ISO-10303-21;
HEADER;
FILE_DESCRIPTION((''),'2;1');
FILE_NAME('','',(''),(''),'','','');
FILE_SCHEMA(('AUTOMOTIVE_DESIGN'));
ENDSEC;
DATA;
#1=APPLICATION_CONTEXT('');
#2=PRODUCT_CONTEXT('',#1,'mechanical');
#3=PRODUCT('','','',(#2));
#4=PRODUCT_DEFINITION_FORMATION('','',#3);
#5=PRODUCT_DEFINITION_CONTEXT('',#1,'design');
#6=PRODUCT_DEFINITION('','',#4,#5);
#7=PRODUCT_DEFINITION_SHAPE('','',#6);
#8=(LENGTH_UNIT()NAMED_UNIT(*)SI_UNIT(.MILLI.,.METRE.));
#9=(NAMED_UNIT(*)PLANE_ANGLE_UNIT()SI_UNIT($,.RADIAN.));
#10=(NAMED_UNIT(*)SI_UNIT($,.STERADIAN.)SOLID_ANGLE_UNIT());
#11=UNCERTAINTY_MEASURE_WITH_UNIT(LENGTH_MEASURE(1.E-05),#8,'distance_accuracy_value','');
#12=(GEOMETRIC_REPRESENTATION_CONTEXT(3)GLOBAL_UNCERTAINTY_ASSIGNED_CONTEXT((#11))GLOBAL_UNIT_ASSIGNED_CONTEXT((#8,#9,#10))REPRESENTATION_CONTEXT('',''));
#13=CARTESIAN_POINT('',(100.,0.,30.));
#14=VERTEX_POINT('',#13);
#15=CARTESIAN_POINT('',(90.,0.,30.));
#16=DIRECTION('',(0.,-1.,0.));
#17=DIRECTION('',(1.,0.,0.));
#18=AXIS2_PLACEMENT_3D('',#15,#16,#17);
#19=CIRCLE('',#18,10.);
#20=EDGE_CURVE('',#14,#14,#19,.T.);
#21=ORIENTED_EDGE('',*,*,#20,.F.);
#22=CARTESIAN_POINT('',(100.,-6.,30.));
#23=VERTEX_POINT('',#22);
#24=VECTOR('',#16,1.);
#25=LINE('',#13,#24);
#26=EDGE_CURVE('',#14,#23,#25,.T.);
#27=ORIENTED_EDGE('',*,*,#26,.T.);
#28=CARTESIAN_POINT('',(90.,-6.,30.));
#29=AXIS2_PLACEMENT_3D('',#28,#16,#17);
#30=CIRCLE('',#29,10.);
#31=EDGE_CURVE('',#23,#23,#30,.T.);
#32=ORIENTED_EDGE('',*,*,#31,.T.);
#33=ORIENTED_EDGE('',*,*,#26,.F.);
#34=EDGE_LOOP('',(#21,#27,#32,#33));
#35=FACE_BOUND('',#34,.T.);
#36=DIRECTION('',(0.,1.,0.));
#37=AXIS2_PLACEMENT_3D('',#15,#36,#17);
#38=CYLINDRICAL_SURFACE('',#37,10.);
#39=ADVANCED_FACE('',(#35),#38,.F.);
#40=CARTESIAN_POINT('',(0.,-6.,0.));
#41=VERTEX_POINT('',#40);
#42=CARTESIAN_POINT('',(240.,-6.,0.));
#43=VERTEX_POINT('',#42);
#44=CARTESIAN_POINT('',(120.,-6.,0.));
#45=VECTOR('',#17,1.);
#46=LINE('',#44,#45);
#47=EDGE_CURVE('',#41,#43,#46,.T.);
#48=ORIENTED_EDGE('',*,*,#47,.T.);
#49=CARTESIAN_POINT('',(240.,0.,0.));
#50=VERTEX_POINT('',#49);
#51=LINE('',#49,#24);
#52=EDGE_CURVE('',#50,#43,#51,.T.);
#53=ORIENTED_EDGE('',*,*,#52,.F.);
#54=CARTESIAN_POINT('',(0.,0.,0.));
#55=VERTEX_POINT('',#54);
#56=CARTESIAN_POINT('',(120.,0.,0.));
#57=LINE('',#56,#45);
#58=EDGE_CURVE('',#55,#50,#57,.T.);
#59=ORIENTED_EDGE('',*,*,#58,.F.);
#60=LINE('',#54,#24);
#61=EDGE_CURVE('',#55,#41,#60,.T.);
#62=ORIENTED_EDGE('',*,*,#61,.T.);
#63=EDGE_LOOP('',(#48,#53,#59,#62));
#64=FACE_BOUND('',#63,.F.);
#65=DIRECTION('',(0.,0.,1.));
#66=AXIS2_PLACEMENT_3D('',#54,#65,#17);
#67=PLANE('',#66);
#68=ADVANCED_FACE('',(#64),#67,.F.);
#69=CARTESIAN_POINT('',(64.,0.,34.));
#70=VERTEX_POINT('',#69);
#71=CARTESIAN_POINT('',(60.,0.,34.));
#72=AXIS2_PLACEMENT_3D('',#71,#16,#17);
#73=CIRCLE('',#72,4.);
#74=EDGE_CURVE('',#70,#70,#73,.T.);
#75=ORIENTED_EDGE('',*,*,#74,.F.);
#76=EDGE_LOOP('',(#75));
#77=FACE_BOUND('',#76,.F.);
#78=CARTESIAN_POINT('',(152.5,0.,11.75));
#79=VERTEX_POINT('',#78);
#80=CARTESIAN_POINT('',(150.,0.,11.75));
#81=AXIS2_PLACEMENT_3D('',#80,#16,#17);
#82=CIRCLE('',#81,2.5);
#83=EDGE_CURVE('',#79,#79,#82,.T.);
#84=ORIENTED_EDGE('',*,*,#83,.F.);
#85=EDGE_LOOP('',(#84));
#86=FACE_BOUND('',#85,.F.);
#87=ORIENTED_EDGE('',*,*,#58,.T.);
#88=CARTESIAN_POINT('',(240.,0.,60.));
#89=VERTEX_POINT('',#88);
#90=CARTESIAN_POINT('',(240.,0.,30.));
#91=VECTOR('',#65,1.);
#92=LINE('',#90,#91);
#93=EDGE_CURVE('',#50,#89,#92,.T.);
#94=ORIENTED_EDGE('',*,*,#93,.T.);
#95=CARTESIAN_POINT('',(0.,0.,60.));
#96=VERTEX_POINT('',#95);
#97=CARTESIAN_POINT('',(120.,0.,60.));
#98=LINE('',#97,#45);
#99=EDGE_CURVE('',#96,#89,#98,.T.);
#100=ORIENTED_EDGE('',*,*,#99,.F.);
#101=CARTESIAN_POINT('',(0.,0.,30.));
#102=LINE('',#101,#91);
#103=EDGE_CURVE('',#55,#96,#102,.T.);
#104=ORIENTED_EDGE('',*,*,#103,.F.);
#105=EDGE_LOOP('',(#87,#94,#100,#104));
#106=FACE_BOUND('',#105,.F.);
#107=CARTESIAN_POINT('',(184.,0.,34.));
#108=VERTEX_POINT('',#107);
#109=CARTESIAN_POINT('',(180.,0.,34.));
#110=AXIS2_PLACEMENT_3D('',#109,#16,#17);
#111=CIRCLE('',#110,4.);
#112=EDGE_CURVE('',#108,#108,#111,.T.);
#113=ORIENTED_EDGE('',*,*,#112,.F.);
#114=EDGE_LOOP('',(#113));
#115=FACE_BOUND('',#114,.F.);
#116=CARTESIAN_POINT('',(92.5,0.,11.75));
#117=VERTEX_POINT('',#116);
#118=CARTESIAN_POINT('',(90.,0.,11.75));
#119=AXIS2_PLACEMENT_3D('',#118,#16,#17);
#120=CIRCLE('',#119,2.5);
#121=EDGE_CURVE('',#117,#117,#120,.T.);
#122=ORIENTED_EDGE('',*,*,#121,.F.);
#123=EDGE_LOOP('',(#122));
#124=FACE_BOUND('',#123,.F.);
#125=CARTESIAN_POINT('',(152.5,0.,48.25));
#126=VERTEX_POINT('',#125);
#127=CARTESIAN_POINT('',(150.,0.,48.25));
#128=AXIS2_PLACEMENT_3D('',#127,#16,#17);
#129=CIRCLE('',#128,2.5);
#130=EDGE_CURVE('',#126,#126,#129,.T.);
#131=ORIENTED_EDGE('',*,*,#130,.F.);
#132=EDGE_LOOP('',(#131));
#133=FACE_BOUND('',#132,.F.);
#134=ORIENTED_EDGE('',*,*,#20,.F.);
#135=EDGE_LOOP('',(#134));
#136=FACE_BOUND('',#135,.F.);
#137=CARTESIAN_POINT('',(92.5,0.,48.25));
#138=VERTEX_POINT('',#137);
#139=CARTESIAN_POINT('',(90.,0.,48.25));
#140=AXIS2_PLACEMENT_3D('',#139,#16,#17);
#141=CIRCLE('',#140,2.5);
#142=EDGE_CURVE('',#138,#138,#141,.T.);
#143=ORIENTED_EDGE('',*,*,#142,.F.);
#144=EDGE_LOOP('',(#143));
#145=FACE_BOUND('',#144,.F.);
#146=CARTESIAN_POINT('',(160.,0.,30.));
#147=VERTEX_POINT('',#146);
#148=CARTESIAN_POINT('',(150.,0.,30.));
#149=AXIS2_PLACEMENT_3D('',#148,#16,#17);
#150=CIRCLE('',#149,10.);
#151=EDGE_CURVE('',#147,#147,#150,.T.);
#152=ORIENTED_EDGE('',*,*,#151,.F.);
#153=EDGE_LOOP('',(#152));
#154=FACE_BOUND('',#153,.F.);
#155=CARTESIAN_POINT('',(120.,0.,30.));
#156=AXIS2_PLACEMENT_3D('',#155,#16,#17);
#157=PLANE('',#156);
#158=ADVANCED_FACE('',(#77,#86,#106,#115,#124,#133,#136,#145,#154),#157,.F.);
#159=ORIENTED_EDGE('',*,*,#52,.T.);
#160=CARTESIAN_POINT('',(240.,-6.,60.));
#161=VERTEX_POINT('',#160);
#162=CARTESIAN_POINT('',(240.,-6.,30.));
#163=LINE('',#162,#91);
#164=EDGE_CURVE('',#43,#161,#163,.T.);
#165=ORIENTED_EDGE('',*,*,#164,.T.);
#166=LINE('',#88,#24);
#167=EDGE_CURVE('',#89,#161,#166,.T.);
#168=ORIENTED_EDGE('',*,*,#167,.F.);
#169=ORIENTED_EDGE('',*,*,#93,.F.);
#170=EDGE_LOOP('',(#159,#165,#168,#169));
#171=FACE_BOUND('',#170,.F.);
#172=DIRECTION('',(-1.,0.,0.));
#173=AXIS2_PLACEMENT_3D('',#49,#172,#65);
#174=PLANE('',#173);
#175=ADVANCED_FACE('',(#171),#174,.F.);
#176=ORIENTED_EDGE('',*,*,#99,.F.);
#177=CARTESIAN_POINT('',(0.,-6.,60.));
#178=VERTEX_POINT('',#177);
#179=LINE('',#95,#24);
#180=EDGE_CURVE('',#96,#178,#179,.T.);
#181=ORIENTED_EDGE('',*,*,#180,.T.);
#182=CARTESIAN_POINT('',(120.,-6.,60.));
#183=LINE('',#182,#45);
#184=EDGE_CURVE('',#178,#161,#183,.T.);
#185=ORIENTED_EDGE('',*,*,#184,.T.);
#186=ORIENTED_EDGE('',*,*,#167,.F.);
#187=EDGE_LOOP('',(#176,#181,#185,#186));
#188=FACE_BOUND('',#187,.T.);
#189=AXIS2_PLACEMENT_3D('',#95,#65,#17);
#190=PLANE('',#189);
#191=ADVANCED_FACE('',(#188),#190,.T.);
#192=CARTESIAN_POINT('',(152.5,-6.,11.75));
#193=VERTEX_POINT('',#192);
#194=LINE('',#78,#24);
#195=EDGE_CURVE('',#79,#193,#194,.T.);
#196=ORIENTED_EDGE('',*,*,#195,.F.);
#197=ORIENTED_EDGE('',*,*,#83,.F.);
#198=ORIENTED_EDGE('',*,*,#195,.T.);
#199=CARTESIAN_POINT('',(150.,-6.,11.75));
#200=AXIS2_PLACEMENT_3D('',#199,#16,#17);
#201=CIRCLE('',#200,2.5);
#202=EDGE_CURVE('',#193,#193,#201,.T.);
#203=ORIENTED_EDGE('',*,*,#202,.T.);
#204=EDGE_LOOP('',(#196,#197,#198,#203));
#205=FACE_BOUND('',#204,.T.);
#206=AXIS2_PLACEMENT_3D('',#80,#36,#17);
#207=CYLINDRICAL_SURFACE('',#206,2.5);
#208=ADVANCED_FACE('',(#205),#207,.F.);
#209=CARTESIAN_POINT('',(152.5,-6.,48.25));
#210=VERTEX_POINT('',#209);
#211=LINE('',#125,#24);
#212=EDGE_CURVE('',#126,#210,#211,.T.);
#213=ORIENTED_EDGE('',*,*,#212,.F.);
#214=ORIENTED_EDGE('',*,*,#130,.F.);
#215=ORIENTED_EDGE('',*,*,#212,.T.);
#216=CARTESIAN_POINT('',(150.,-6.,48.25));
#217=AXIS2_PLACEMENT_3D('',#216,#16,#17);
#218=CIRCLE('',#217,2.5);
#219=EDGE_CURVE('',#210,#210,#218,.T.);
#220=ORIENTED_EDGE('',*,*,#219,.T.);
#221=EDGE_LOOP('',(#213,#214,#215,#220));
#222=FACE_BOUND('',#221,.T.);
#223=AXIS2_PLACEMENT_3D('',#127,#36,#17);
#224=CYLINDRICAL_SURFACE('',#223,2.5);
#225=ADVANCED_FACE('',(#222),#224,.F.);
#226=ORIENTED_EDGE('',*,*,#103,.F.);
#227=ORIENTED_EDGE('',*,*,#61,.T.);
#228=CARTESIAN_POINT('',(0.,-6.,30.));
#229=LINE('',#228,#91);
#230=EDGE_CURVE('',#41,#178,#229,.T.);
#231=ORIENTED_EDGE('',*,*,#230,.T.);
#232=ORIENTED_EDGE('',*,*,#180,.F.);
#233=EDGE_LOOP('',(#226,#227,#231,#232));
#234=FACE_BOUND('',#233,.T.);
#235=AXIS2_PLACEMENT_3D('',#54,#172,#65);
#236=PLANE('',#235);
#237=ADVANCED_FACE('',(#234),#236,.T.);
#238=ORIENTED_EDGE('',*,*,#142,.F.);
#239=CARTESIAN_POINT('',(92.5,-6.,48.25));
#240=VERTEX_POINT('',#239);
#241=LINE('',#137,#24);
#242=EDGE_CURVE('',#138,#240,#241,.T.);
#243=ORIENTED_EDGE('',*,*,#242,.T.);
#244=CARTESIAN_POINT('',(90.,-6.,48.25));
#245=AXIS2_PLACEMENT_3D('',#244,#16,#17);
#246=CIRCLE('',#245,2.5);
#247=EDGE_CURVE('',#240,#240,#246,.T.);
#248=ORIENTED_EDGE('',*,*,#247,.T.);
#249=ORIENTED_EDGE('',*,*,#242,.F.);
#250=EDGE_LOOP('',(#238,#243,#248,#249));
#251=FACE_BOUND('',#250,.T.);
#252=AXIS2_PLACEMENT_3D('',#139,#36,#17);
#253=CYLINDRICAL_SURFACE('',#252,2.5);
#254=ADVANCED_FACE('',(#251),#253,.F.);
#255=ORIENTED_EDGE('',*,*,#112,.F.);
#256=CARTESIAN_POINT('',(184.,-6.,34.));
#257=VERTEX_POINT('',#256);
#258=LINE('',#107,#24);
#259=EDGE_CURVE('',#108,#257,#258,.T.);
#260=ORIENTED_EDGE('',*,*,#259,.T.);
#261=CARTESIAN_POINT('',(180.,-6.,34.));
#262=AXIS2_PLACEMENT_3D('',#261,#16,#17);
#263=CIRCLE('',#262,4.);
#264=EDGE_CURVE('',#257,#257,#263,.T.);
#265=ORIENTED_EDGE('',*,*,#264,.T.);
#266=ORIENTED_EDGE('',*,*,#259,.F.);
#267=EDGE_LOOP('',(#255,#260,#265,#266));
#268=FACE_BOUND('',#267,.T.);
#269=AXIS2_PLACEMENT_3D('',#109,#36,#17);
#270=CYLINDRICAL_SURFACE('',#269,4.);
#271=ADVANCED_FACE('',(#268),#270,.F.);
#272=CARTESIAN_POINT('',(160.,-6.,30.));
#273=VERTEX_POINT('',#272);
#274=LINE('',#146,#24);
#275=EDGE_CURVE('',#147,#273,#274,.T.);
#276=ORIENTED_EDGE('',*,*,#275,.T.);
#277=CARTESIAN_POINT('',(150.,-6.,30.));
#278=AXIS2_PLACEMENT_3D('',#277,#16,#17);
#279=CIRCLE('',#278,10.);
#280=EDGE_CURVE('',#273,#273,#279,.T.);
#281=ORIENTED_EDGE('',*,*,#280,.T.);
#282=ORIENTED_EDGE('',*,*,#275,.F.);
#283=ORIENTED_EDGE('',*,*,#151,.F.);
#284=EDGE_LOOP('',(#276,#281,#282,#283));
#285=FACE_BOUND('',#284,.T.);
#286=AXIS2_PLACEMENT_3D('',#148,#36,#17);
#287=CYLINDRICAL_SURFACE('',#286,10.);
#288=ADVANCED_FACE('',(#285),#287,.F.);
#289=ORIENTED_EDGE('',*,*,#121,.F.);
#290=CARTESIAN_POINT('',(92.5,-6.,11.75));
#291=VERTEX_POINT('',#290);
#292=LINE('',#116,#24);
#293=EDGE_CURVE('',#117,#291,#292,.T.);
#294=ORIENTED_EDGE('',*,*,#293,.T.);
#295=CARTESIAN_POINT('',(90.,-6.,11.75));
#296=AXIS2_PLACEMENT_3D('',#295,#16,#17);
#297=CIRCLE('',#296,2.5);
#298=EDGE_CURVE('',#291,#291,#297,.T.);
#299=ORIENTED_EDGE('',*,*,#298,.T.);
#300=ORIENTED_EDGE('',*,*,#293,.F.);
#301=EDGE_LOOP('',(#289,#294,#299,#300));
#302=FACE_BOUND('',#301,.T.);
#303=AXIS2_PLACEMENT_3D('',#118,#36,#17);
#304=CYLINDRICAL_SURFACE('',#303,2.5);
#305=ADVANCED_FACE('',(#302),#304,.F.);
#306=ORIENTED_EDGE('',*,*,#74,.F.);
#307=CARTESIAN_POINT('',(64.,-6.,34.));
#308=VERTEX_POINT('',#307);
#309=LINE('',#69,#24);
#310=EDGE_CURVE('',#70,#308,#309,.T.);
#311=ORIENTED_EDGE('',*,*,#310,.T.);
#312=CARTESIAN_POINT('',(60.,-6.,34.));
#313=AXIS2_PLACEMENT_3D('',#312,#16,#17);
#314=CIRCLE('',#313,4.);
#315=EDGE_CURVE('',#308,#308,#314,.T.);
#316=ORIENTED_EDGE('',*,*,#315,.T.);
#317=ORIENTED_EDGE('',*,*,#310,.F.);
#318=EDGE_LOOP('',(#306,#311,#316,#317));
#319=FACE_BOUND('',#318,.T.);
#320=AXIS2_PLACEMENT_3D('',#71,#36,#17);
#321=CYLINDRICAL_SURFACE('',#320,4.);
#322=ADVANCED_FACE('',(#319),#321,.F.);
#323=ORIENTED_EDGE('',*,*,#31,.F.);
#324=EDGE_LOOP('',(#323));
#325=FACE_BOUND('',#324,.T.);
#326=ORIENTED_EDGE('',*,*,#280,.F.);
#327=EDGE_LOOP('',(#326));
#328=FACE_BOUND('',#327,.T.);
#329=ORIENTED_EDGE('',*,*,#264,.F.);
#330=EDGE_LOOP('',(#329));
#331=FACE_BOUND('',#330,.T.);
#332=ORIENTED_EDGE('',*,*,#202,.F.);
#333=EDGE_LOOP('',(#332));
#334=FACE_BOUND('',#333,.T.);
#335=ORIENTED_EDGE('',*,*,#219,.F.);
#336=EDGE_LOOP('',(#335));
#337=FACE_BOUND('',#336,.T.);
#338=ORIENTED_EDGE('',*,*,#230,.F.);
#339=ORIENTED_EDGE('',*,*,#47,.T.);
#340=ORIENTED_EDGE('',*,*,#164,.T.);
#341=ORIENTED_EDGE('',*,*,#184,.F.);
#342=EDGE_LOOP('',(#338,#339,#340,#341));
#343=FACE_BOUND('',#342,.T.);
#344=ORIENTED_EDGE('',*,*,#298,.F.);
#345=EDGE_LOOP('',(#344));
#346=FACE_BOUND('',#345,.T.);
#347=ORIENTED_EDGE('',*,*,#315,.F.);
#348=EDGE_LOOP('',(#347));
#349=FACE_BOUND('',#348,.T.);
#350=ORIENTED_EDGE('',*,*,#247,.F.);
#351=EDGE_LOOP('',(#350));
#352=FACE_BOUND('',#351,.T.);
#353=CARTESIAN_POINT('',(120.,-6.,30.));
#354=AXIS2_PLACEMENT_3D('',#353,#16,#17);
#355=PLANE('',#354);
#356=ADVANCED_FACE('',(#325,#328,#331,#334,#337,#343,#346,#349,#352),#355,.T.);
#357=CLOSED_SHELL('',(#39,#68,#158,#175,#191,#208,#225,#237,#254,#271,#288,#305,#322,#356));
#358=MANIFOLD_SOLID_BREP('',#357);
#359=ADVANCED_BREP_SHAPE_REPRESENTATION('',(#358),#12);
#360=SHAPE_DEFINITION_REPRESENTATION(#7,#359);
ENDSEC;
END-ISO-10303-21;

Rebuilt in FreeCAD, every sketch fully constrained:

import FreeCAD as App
import Part
import Sketcher
from FreeCAD import Vector

doc = App.newDocument("Part")
body = doc.addObject("PartDesign::Body", "Body")

# Sketch on XZ plane
sketch1 = doc.addObject("Sketcher::SketchObject", "Sketch")
body.addObject(sketch1)
sketch1.AttachmentSupport = (doc.XZ_Plane, [""])
sketch1.MapMode = "FlatFace"
sketch1.addGeometry([
    Part.LineSegment(Vector(0, 60, 0), Vector(0, 0, 0)),  # 0
    Part.LineSegment(Vector(0, 0, 0), Vector(240, 0, 0)),  # 1
    Part.LineSegment(Vector(240, 0, 0), Vector(240, 60, 0)),  # 2
    Part.LineSegment(Vector(240, 60, 0), Vector(0, 60, 0)),  # 3
    Part.Circle(Vector(90, 11.8, 0), Vector(0, 0, 1), 2.5),  # 4
    Part.Circle(Vector(150, 11.8, 0), Vector(0, 0, 1), 2.5),  # 5
    Part.Circle(Vector(60, 34, 0), Vector(0, 0, 1), 4),  # 6
    Part.Circle(Vector(90, 30, 0), Vector(0, 0, 1), 10),  # 7
    Part.Circle(Vector(90, 48.2, 0), Vector(0, 0, 1), 2.5),  # 8
    Part.Circle(Vector(150, 30, 0), Vector(0, 0, 1), 10),  # 9
    Part.Circle(Vector(180, 34, 0), Vector(0, 0, 1), 4),  # 10
    Part.Circle(Vector(150, 48.2, 0), Vector(0, 0, 1), 2.5),  # 11
], False)
sketch1.addConstraint([
    Sketcher.Constraint("Coincident", 0, 2, 1, 1),
    Sketcher.Constraint("Coincident", 1, 2, 2, 1),
    Sketcher.Constraint("Coincident", 2, 2, 3, 1),
    Sketcher.Constraint("Coincident", 3, 2, 0, 1),
    Sketcher.Constraint("Vertical", 0),
    Sketcher.Constraint("Horizontal", 1),
    Sketcher.Constraint("Vertical", 2),
    Sketcher.Constraint("Horizontal", 3),
    Sketcher.Constraint("Coincident", 0, 2, -1, 1),
    Sketcher.Constraint("Equal", 4, 5),
    Sketcher.Constraint("Equal", 5, 8),
    Sketcher.Constraint("Equal", 7, 9),
    Sketcher.Constraint("Equal", 6, 10),
    Sketcher.Constraint("Equal", 8, 11),
    Sketcher.Constraint("Horizontal", 4, 3, 5, 3),
    Sketcher.Constraint("Horizontal", 7, 3, 9, 3),
    Sketcher.Constraint("Horizontal", 6, 3, 10, 3),
    Sketcher.Constraint("Horizontal", 8, 3, 11, 3),
    Sketcher.Constraint("Vertical", 4, 3, 7, 3),
    Sketcher.Constraint("Vertical", 7, 3, 8, 3),
    Sketcher.Constraint("Vertical", 5, 3, 9, 3),
    Sketcher.Constraint("Vertical", 9, 3, 11, 3),
    Sketcher.Constraint("Diameter", 4, 5.0),
    Sketcher.Constraint("Diameter", 6, 8.0),
    Sketcher.Constraint("Diameter", 7, 20.0),
    Sketcher.Constraint("DistanceX", 1, 1, 1, 2, 240.0),
    Sketcher.Constraint("DistanceY", 0, 2, 0, 1, 60.0),
    Sketcher.Constraint("DistanceX", -1, 1, 4, 3, 90.0),
    Sketcher.Constraint("DistanceX", -1, 1, 5, 3, 150.0),
    Sketcher.Constraint("DistanceX", -1, 1, 6, 3, 60.0),
    Sketcher.Constraint("DistanceY", -1, 1, 6, 3, 34.0),
    Sketcher.Constraint("DistanceY", -1, 1, 7, 3, 30.0),
    Sketcher.Constraint("DistanceX", -1, 1, 10, 3, 180.0),
    Sketcher.Constraint("DistanceY", 4, 3, 8, 3, 36.5),
    Sketcher.Constraint("DistanceY", -1, 1, 4, 3, 11.75),
])
pad1 = doc.addObject("PartDesign::Pad", "Pad")
body.addObject(pad1)
pad1.Profile = sketch1
pad1.Length = 6

doc.recompute()
